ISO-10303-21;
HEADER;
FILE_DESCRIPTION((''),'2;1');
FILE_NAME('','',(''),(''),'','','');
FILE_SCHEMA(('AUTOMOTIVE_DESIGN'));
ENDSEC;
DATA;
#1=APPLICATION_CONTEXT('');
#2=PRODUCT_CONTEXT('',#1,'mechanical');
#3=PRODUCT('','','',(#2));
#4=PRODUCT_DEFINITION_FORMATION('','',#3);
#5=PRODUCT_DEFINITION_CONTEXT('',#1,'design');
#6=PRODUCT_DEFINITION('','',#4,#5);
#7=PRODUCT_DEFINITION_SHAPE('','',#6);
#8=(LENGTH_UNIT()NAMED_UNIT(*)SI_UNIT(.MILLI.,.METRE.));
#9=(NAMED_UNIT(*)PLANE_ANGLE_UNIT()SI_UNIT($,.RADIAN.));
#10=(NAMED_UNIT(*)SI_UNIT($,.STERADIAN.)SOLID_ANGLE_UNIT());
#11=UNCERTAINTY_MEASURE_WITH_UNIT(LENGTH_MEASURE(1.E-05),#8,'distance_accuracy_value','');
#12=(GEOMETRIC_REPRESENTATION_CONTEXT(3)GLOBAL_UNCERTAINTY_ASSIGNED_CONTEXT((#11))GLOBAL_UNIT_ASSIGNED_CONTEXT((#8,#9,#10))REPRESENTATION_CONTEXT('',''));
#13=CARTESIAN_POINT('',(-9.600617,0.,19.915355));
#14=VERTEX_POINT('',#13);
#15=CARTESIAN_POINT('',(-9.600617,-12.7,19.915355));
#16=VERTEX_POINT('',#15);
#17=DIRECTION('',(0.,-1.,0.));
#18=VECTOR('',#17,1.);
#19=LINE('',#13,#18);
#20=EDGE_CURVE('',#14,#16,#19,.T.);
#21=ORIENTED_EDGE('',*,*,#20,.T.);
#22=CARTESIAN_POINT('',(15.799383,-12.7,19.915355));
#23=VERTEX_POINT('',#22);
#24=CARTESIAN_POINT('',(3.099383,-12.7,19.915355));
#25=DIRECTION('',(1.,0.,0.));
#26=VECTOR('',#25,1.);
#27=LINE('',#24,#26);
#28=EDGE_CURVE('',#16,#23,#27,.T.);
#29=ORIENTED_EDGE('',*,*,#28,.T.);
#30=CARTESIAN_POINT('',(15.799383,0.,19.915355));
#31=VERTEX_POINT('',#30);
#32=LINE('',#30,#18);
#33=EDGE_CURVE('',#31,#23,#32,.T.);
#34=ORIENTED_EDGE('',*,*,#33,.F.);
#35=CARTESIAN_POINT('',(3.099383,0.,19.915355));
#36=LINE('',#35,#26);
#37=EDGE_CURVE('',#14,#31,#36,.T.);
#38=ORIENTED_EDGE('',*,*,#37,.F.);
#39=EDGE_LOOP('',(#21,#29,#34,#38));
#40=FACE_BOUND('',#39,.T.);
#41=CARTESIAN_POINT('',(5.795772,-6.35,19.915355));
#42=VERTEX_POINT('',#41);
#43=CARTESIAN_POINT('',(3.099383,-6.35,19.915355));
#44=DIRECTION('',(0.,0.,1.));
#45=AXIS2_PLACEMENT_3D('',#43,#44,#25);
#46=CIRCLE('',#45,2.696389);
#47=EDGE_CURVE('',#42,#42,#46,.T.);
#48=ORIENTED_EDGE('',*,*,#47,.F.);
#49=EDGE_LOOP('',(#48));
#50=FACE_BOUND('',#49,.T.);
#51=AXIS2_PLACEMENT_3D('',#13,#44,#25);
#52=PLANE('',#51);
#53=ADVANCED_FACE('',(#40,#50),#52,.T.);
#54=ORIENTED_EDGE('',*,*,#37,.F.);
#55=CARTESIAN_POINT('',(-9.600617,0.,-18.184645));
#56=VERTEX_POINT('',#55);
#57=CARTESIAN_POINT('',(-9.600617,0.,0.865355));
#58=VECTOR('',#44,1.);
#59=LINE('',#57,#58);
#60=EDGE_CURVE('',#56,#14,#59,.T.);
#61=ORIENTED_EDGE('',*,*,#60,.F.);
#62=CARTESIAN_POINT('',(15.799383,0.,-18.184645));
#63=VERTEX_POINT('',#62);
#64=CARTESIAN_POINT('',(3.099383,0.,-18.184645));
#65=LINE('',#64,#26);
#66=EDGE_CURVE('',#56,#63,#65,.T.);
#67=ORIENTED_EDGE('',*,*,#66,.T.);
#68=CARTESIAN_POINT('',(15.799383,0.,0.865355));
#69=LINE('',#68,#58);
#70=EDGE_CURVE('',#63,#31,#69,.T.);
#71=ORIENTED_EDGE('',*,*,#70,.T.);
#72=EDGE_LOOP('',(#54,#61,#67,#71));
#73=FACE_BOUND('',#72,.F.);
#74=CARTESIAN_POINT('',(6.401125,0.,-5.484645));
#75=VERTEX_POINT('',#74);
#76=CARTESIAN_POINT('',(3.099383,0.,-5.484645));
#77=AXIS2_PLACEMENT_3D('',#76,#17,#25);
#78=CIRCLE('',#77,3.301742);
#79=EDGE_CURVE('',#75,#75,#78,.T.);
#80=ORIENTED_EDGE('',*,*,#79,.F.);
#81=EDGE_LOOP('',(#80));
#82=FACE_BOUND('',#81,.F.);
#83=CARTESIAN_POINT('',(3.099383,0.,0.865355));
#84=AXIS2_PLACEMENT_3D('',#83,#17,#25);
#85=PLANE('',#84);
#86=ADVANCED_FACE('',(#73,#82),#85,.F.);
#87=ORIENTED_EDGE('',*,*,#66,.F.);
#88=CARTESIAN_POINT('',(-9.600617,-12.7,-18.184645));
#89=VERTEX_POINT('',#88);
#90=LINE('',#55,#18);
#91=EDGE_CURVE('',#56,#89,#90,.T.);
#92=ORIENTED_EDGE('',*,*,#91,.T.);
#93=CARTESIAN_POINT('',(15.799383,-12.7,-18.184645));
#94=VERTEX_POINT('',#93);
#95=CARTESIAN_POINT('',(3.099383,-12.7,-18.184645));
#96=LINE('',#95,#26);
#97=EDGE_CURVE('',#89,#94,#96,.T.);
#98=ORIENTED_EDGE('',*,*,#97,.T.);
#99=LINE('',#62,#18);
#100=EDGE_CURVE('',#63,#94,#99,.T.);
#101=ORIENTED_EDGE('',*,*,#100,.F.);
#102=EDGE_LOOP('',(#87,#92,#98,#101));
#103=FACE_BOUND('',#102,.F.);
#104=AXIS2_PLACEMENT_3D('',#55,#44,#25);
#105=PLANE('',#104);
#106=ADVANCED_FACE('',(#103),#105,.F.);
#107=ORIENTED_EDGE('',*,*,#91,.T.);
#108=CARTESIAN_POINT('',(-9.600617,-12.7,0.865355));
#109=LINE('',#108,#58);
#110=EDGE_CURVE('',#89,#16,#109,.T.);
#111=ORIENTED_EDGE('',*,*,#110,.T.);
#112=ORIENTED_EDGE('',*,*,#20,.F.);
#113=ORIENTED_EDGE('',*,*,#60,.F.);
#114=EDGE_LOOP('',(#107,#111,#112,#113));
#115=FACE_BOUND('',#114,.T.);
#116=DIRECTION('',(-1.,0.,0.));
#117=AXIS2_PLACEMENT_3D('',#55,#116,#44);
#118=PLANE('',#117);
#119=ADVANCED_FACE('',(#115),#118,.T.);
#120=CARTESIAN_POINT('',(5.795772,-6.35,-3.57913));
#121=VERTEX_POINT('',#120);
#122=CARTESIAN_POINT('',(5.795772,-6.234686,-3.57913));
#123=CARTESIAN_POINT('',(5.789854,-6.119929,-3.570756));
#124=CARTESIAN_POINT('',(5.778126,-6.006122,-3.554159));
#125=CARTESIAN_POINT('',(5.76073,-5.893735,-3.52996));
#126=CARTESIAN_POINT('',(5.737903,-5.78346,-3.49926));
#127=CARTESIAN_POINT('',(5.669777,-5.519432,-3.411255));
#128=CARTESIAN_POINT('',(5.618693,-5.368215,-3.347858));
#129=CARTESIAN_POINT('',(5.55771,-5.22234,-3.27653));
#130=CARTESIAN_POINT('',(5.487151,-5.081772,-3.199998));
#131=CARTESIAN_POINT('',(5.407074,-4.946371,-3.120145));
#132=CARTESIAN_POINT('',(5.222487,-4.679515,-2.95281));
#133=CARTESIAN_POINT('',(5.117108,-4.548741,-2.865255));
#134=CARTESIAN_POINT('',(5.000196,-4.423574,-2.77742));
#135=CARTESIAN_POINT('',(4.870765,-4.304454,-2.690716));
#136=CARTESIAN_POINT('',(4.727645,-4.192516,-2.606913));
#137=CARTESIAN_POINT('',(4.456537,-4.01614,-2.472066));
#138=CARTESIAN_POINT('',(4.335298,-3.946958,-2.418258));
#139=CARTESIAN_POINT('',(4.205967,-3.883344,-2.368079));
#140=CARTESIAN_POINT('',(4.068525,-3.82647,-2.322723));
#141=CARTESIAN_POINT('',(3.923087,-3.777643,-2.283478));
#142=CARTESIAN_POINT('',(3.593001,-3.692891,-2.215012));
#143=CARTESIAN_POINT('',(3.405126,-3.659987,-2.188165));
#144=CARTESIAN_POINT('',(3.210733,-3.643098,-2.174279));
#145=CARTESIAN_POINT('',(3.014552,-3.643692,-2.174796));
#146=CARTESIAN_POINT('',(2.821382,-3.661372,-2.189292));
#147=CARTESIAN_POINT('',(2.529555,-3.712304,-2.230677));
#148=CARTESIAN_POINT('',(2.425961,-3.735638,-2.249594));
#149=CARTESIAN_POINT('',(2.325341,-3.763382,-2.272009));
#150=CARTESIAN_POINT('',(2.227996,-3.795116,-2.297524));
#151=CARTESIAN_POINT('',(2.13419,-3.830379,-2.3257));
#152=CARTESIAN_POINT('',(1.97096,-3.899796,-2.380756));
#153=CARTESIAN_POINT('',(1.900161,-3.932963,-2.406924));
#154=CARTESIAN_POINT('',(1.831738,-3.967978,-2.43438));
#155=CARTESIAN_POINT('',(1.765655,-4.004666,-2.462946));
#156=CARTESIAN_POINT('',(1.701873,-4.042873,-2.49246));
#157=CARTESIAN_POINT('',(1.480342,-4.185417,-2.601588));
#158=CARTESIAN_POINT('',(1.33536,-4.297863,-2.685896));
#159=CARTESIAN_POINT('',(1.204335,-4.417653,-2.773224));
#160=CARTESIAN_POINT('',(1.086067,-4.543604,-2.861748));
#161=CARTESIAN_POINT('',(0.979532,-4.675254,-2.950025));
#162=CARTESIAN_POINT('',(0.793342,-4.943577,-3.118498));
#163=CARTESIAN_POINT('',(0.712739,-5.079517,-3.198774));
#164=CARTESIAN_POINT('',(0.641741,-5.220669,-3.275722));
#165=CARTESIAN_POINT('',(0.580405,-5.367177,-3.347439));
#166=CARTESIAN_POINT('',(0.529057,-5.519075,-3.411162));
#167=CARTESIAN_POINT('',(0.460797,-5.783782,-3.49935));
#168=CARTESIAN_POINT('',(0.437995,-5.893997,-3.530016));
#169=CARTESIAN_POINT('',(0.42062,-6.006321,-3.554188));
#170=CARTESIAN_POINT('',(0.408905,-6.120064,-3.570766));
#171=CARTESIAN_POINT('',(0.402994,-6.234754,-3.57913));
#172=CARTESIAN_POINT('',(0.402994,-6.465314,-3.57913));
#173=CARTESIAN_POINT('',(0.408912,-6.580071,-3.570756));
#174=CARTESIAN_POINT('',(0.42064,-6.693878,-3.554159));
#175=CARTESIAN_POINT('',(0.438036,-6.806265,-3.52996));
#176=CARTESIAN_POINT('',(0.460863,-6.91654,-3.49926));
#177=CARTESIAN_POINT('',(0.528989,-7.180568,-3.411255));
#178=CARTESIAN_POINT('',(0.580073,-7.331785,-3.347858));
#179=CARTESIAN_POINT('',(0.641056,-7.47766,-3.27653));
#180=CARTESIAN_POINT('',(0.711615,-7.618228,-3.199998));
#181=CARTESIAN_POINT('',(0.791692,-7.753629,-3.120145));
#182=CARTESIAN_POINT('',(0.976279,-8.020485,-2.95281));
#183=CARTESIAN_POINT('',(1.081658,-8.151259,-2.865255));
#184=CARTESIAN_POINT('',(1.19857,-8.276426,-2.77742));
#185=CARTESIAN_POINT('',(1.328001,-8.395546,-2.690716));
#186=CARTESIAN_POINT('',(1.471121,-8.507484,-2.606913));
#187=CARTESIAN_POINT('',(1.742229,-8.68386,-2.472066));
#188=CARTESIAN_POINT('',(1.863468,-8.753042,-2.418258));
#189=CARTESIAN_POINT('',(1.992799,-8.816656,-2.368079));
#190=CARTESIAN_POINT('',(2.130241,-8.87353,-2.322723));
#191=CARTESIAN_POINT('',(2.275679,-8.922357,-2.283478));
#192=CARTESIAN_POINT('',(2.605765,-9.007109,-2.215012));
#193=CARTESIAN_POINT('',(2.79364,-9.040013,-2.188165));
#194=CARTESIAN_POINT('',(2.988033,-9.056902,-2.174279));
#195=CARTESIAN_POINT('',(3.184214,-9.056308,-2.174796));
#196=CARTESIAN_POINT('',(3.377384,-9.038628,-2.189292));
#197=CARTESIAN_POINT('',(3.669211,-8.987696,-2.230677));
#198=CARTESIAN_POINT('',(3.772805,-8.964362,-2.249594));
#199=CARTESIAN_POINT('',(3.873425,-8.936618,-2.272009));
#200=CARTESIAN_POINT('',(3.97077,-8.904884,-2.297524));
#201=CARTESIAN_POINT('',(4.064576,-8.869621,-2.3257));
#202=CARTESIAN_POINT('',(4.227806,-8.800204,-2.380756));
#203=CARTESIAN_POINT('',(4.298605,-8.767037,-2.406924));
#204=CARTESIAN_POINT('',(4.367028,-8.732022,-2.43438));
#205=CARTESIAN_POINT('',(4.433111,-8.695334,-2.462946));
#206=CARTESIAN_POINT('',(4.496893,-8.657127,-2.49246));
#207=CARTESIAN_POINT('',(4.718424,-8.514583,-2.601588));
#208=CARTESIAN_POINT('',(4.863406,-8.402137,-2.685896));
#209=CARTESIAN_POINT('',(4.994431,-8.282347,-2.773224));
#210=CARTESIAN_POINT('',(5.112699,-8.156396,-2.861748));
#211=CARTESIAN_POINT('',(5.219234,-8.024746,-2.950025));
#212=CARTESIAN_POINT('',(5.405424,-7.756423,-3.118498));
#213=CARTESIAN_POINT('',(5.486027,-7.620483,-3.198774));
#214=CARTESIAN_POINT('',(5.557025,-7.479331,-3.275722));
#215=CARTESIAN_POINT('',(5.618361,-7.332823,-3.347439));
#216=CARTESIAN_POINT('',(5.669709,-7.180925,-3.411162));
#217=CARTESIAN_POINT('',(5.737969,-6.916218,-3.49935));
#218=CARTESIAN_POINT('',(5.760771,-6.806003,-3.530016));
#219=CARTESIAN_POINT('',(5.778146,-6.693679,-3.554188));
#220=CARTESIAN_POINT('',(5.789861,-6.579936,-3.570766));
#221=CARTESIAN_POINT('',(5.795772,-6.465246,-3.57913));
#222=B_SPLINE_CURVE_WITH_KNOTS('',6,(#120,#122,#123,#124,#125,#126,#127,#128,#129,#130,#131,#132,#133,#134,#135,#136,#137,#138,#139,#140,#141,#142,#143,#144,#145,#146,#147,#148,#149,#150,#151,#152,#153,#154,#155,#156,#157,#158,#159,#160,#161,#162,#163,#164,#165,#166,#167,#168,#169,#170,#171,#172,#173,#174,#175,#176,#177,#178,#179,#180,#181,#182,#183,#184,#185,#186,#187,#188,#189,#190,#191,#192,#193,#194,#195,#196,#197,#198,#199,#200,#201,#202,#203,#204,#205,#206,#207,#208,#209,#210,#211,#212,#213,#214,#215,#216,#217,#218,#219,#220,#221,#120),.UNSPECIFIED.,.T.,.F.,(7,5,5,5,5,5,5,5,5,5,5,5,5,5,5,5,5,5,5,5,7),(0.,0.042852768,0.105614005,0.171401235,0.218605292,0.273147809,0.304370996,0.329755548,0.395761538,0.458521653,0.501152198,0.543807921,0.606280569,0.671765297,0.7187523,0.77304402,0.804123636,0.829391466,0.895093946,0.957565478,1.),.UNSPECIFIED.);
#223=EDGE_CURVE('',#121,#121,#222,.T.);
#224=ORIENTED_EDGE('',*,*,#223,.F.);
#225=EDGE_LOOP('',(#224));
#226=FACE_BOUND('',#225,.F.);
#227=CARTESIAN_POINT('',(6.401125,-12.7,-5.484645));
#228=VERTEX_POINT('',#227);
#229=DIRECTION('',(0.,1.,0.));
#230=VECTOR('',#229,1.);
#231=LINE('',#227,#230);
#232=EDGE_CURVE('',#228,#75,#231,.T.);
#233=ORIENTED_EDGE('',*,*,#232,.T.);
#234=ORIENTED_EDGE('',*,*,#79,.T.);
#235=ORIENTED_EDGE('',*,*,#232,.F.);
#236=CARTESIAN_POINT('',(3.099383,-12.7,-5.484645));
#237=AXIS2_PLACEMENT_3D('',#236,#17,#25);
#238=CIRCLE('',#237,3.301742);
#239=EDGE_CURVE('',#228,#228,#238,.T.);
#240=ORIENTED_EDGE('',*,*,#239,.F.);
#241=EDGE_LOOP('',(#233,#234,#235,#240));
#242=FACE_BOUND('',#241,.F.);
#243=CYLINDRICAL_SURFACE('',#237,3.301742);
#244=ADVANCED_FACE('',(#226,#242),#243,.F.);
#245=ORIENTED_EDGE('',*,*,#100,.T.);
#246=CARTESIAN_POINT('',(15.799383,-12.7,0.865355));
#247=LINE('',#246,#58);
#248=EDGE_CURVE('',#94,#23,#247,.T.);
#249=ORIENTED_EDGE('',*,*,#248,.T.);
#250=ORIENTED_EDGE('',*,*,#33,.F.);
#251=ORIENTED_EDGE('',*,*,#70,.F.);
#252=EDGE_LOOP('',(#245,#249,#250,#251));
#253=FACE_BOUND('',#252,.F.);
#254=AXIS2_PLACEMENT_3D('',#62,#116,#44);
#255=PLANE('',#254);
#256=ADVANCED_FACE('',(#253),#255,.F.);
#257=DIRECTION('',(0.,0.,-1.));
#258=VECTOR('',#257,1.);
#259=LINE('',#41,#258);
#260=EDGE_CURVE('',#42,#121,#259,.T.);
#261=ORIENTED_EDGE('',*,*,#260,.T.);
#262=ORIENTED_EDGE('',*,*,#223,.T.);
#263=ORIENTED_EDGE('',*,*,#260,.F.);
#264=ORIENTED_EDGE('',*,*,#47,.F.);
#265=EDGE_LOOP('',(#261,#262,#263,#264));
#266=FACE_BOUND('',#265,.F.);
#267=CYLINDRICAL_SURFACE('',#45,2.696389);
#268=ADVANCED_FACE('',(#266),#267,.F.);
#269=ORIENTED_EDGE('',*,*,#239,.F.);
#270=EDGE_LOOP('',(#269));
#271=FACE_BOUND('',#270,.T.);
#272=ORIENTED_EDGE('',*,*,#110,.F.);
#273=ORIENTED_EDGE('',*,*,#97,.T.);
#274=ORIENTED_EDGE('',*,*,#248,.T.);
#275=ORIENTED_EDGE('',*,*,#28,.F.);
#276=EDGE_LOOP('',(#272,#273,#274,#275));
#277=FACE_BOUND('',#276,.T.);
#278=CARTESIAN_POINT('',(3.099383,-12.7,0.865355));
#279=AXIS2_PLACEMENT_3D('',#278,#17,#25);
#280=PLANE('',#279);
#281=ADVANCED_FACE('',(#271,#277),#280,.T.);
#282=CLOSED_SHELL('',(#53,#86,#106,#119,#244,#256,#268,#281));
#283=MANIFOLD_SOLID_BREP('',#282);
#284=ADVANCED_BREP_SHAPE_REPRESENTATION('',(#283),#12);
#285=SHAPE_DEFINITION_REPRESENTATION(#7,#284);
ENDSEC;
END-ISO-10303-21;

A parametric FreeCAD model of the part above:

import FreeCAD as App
import Part
import Sketcher
from FreeCAD import Vector
Q = App.Units.Quantity


def add_polygon(sketch, points):
    """Adds a closed chain of lines whose ends are joined by coincident constraints."""
    first, n = sketch.GeometryCount, len(points)
    for a, b in zip(points, points[1:] + points[:1]):
        sketch.addGeometry(Part.LineSegment(App.Vector(*a, 0), App.Vector(*b, 0)), False)
    for i in range(n):
        sketch.addConstraint(Sketcher.Constraint("Coincident", first + i, 2, first + (i + 1) % n, 1))

doc = App.newDocument("Part")
body = doc.addObject("PartDesign::Body", "Body")

# Sketch on XZ plane
sketch1 = body.newObject("Sketcher::SketchObject", "Sketch")
sketch1.AttachmentSupport = (doc.getObject("XZ_Plane"), [""])
sketch1.MapMode = "FlatFace"
add_polygon(sketch1, [(-9.600617, 19.915355), (-9.600617, -18.184645), (15.799383, -18.184645), (15.799383, 19.915355)])  # lines 0-3
sketch1.addConstraint([
    Sketcher.Constraint("Vertical", 0),
    Sketcher.Constraint("Horizontal", 1),
    Sketcher.Constraint("Vertical", 2),
    Sketcher.Constraint("Horizontal", 3),
    Sketcher.Constraint("DistanceX", 1, 1, 1, 2, Q("1 in")),
    Sketcher.Constraint("DistanceY", 0, 2, 0, 1, Q("1.5 in")),
    Sketcher.Constraint("DistanceX", 0, 2, -1, 1, 9.600617),
    Sketcher.Constraint("DistanceY", 0, 2, -1, 1, 18.184645),
])
pad1 = body.newObject("PartDesign::Pad", "Pad")
pad1.Profile = sketch1
pad1.Length = Q("0.5 in")

# Sketch on XZ plane
sketch2 = body.newObject("Sketcher::SketchObject", "Sketch001")
sketch2.AttachmentSupport = (doc.getObject("XZ_Plane"), [""])
sketch2.MapMode = "FlatFace"
sketch2.AttachmentOffset = App.Placement(Vector(0, 0, 0.5 * 25.4), App.Rotation())
sketch2.addGeometry(Part.Circle(Vector(3.099383, -5.484645, 0), Vector(0, 0, 1), 3.301742), False)
sketch2.addConstraint([
    Sketcher.Constraint("Diameter", 0, 6.603484),
    Sketcher.Constraint("DistanceX", -1, 1, 0, 3, 3.099383),
    Sketcher.Constraint("DistanceY", 0, 3, -1, 1, 5.484645),
])
pocket1 = body.newObject("PartDesign::Pocket", "Pocket")
pocket1.Profile = sketch2
pocket1.Length = Q("1 in")

# Sketch on XY plane
sketch3 = body.newObject("Sketcher::SketchObject", "Sketch002")
sketch3.AttachmentSupport = (doc.getObject("XY_Plane"), [""])
sketch3.MapMode = "FlatFace"
sketch3.AttachmentOffset = App.Placement(Vector(0, 0, 19.915355), App.Rotation())
sketch3.addGeometry(Part.Circle(Vector(3.099383, -6.35, 0), Vector(0, 0, 1), 2.696389), False)
sketch3.addConstraint([
    Sketcher.Constraint("DistanceY", 0, 3, -1, 1, Q("0.25 in")),
    Sketcher.Constraint("Diameter", 0, 5.392778),
    Sketcher.Constraint("DistanceX", -1, 1, 0, 3, 3.099383),
])
pocket2 = body.newObject("PartDesign::Pocket", "Pocket001")
pocket2.Profile = sketch3
pocket2.Length = Q("1 in")

doc.recompute()
